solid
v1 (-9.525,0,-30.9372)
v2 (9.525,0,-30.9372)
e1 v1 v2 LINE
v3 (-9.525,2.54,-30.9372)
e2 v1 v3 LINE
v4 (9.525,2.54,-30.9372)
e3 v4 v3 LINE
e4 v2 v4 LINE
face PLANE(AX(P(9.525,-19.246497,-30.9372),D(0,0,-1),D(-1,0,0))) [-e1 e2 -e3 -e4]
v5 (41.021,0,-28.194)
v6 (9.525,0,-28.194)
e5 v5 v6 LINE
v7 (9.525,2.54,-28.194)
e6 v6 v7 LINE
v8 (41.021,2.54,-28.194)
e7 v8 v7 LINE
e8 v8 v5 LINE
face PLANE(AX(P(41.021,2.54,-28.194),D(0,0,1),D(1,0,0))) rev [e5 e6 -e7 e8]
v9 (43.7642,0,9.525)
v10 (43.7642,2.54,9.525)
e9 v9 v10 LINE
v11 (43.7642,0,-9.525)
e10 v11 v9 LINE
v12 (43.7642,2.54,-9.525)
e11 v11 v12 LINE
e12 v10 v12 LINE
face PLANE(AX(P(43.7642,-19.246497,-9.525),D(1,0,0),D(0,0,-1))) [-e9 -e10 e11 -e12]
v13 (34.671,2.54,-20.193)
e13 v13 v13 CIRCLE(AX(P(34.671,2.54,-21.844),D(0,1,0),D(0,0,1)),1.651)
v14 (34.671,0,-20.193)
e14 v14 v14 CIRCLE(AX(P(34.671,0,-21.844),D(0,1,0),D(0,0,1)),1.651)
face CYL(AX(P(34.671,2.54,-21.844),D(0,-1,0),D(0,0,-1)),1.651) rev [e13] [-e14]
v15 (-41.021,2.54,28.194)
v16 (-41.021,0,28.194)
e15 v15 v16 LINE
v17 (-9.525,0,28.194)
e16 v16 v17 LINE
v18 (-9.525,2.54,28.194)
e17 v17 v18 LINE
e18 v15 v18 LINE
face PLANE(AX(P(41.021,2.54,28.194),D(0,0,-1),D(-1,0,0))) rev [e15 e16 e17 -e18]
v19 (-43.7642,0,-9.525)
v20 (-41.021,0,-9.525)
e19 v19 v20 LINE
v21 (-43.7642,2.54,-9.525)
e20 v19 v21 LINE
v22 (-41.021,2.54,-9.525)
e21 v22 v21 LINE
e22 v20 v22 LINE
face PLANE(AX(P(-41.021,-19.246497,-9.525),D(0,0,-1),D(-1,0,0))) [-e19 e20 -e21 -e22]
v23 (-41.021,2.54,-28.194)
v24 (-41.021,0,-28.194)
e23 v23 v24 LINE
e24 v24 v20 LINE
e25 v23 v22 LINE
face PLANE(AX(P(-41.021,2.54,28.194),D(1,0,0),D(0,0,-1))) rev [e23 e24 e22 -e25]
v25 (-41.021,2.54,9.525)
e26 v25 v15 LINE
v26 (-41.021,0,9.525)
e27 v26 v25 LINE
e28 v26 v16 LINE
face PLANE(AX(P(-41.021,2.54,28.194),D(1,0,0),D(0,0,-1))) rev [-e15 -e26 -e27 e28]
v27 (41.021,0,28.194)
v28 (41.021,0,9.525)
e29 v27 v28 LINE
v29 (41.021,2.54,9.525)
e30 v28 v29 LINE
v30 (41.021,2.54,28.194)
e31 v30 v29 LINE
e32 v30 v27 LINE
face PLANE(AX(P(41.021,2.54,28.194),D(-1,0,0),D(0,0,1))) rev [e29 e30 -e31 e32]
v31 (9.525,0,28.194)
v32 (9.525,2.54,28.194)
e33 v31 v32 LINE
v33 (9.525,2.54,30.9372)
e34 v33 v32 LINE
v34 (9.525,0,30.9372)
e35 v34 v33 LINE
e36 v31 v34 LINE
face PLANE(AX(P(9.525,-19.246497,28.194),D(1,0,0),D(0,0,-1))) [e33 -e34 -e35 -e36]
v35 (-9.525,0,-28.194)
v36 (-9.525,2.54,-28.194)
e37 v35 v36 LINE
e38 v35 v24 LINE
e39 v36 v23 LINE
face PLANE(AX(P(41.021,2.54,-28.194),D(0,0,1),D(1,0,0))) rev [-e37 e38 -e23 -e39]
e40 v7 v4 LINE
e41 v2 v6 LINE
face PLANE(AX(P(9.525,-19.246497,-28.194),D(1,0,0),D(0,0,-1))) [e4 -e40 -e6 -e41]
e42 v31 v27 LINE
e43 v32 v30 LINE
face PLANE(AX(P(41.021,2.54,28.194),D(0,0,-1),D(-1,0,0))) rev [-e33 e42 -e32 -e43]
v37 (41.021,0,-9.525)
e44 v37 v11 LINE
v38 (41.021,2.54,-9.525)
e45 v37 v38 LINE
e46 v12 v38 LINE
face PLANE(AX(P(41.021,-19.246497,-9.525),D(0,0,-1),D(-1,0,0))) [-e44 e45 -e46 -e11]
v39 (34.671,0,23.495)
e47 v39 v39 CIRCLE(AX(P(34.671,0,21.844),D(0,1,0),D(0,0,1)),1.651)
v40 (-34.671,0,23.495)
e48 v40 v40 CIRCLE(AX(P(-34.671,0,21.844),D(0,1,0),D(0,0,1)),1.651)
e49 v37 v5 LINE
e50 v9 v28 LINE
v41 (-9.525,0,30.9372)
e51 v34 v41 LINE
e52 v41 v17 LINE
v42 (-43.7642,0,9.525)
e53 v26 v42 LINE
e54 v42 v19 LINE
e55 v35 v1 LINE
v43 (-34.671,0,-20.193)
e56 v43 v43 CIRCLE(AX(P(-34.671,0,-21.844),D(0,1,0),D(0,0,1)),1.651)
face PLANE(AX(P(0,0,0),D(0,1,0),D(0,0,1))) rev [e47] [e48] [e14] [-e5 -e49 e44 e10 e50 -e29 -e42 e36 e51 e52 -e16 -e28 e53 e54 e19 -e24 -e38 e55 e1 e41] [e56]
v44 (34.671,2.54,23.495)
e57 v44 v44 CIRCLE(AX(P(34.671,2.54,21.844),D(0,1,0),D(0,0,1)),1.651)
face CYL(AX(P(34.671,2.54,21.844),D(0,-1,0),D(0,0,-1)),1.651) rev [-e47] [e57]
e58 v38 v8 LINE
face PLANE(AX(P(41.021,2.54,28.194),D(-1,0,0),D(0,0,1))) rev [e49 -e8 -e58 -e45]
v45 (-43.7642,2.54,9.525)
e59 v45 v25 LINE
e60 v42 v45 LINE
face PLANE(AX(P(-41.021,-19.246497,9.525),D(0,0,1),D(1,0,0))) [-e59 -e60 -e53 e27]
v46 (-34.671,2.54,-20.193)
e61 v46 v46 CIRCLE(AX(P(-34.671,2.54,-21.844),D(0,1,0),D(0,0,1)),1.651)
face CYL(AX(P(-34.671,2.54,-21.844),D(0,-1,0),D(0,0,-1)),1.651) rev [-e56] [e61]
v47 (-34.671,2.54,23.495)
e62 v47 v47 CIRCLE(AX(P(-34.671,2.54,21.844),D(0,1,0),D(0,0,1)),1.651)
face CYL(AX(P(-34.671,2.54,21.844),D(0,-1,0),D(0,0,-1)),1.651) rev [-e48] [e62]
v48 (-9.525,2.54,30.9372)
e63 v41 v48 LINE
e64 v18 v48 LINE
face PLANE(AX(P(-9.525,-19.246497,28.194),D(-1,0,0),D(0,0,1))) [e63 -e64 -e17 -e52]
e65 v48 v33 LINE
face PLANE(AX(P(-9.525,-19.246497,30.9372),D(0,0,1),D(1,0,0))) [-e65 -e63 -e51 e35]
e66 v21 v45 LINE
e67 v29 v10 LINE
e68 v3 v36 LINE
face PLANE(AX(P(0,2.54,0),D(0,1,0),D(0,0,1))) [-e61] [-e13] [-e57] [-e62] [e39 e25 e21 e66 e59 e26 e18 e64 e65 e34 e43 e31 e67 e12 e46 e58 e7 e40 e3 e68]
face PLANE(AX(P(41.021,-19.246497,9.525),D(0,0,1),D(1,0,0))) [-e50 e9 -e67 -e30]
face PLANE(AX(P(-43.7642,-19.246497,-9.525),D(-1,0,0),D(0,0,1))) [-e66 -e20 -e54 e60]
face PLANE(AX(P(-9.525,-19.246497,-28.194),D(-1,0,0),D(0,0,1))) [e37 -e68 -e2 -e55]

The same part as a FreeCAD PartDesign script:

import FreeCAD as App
import Part
import Sketcher
Q = App.Units.Quantity


def add_polygon(sketch, points):
    """Adds a closed chain of lines whose ends are joined by coincident constraints."""
    first, n = sketch.GeometryCount, len(points)
    for a, b in zip(points, points[1:] + points[:1]):
        sketch.addGeometry(Part.LineSegment(App.Vector(*a, 0), App.Vector(*b, 0)), False)
    for i in range(n):
        sketch.addConstraint(Sketcher.Constraint("Coincident", first + i, 2, first + (i + 1) % n, 1))

doc = App.newDocument("Part")
body = doc.addObject("PartDesign::Body", "Body")

sketch1 = body.newObject("Sketcher::SketchObject", "Sketch")
sketch1.AttachmentSupport = (doc.getObject("XZ_Plane"), [""])
sketch1.MapMode = "FlatFace"
add_polygon(sketch1, [(-41, -28.2), (-41, 28.2), (41, 28.2), (41, -28.2)])
sketch1.addGeometry(Part.Circle(App.Vector(-34.7, 21.8, 0), App.Vector(0, 0, 1), 1.7), False)
sketch1.addGeometry(Part.Circle(App.Vector(34.7, 21.8, 0), App.Vector(0, 0, 1), 1.7), False)
sketch1.addGeometry(Part.Circle(App.Vector(-34.7, -21.8, 0), App.Vector(0, 0, 1), 1.7), False)
sketch1.addGeometry(Part.Circle(App.Vector(34.7, -21.8, 0), App.Vector(0, 0, 1), 1.7), False)
sketch1.addConstraint([
    Sketcher.Constraint("Vertical", 0),
    Sketcher.Constraint("Horizontal", 1),
    Sketcher.Constraint("Vertical", 2),
    Sketcher.Constraint("Horizontal", 3),
    Sketcher.Constraint("Equal", 4, 5),
    Sketcher.Constraint("Equal", 5, 6),
    Sketcher.Constraint("Equal", 6, 7),
    Sketcher.Constraint("Symmetric", 5, 3, 6, 3, -1, 1),
    Sketcher.Constraint("Symmetric", 4, 3, 7, 3, -1, 1),
    Sketcher.Constraint("Symmetric", 0, 2, 2, 2, -1, 1),
    Sketcher.Constraint("Symmetric", 4, 3, 5, 3, -2),
    Sketcher.Constraint("Diameter", 4, Q("0.13 in")),
    Sketcher.Constraint("DistanceX", 1, 1, 1, 2, Q("3.23 in")),
    Sketcher.Constraint("DistanceY", 0, 1, 0, 2, Q("2.22 in")),
    Sketcher.Constraint("DistanceY", -1, 1, 4, 3, Q("0.86 in")),
    Sketcher.Constraint("DistanceX", 4, 3, 5, 3, Q("2.73 in")),
])
pad1 = body.newObject("PartDesign::Pad", "Pad")
pad1.Profile = sketch1
pad1.Length = Q("0.1 in")
pad1.Reversed = True

sketch2 = body.newObject("Sketcher::SketchObject", "Sketch001")
sketch2.AttachmentSupport = (doc.getObject("XZ_Plane"), [""])
sketch2.MapMode = "FlatFace"
sketch2.AttachmentOffset = App.Placement(App.Vector(0, 0, -0.1 * 25.4), App.Rotation())
add_polygon(sketch2, [(-9.5, -30.9), (-9.5, -28.2), (9.5, -28.2), (9.5, -30.9)])
add_polygon(sketch2, [(-9.5, 28.2), (-9.5, 30.9), (9.5, 30.9), (9.5, 28.2)])
add_polygon(sketch2, [(41, -9.5), (41, 9.5), (43.8, 9.5), (43.8, -9.5)])
add_polygon(sketch2, [(-43.8, -9.5), (-43.8, 9.5), (-41, 9.5), (-41, -9.5)])
sketch2.addConstraint([
    Sketcher.Constraint("Vertical", 0),
    Sketcher.Constraint("Horizontal", 1),
    Sketcher.Constraint("Vertical", 2),
    Sketcher.Constraint("Horizontal", 3),
    Sketcher.Constraint("Vertical", 4),
    Sketcher.Constraint("Horizontal", 5),
    Sketcher.Constraint("Vertical", 6),
    Sketcher.Constraint("Horizontal", 7),
    Sketcher.Constraint("Vertical", 8),
    Sketcher.Constraint("Horizontal", 9),
    Sketcher.Constraint("Vertical", 10),
    Sketcher.Constraint("Horizontal", 11),
    Sketcher.Constraint("Vertical", 12),
    Sketcher.Constraint("Horizontal", 13),
    Sketcher.Constraint("Vertical", 14),
    Sketcher.Constraint("Horizontal", 15),
    Sketcher.Constraint("Symmetric", 2, 2, 4, 2, -1, 1),
    Sketcher.Constraint("Symmetric", 0, 2, 6, 2, -1, 1),
    Sketcher.Constraint("Symmetric", 10, 2, 12, 2, -1, 1),
    Sketcher.Constraint("Symmetric", 8, 2, 14, 2, -1, 1),
    Sketcher.Constraint("Horizontal", 9, 2, 12, 2),
    Sketcher.Constraint("Vertical", 3, 2, 4, 2),
    Sketcher.Constraint("Equal", 15, 0),
    Sketcher.Constraint("Equal", 7, 8),
    Sketcher.Constraint("DistanceX", 1, 1, 1, 2, Q("0.75 in")),
    Sketcher.Constraint("DistanceX", 9, 1, 9, 2, Q("0.108 in")),
    Sketcher.Constraint("DistanceY", 0, 2, -1, 1, Q("1.11 in")),
    Sketcher.Constraint("DistanceX", 6, 2, 8, 2, Q("1.24 in")),
])
pad2 = body.newObject("PartDesign::Pad", "Pad001")
pad2.Profile = sketch2
pad2.Length = Q("0.1 in")

doc.recompute()
